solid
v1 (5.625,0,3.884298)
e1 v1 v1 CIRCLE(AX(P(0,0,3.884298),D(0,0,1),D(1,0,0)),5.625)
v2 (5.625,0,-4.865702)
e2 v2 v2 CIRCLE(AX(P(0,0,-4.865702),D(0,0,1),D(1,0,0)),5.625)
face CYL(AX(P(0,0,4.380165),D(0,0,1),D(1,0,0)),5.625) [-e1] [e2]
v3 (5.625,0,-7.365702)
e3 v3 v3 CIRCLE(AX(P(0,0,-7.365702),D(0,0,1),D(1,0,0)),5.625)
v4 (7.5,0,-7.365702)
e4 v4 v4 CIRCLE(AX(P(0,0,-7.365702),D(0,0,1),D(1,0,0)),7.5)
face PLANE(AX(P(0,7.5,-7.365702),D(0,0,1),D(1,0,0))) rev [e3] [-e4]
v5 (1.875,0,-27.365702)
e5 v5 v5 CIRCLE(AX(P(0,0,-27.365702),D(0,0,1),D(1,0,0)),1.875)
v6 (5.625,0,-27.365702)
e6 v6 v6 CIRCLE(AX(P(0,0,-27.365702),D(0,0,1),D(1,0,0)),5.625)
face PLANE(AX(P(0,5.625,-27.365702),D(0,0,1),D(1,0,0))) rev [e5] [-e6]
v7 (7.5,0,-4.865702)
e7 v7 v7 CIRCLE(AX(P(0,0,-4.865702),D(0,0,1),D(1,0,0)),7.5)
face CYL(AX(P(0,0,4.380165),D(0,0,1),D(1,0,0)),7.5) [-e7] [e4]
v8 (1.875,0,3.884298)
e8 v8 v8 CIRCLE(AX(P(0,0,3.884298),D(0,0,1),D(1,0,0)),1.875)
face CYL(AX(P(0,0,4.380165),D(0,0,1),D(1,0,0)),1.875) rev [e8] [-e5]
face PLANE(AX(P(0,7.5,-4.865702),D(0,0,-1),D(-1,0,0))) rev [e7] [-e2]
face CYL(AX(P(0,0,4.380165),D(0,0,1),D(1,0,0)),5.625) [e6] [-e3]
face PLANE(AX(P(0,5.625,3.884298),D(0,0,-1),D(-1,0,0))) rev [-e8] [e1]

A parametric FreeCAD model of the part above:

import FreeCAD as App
import Part
import Sketcher
Q = App.Units.Quantity

doc = App.newDocument("Part")
body = doc.addObject("PartDesign::Body", "Body")

# Sketch on YZ plane
sketch1 = body.newObject("Sketcher::SketchObject", "Sketch")
sketch1.AttachmentSupport = (doc.getObject("YZ_Plane"), [""])
sketch1.MapMode = "FlatFace"
sketch1.addGeometry([
    Part.LineSegment(App.Vector(5.6, -27.4, 0), App.Vector(5.6, -7.4, 0)),  # 0
    Part.LineSegment(App.Vector(5.6, -7.4, 0), App.Vector(7.5, -7.4, 0)),  # 1
    Part.LineSegment(App.Vector(7.5, -7.4, 0), App.Vector(7.5, -4.9, 0)),  # 2
    Part.LineSegment(App.Vector(7.5, -4.9, 0), App.Vector(5.6, -4.9, 0)),  # 3
    Part.LineSegment(App.Vector(5.6, -4.9, 0), App.Vector(5.6, 3.9, 0)),  # 4
    Part.LineSegment(App.Vector(5.6, 3.9, 0), App.Vector(1.9, 3.9, 0)),  # 5
    Part.LineSegment(App.Vector(1.9, 3.9, 0), App.Vector(1.9, -27.4, 0)),  # 6
    Part.LineSegment(App.Vector(1.9, -27.4, 0), App.Vector(5.6, -27.4, 0)),  # 7
], False)
sketch1.addConstraint([
    Sketcher.Constraint("Coincident", 0, 2, 1, 1),
    Sketcher.Constraint("Coincident", 1, 2, 2, 1),
    Sketcher.Constraint("Coincident", 2, 2, 3, 1),
    Sketcher.Constraint("Coincident", 3, 2, 4, 1),
    Sketcher.Constraint("Coincident", 4, 2, 5, 1),
    Sketcher.Constraint("Coincident", 5, 2, 6, 1),
    Sketcher.Constraint("Coincident", 6, 2, 7, 1),
    Sketcher.Constraint("Coincident", 7, 2, 0, 1),
    Sketcher.Constraint("Vertical", 0),
    Sketcher.Constraint("Horizontal", 1),
    Sketcher.Constraint("Vertical", 2),
    Sketcher.Constraint("Horizontal", 3),
    Sketcher.Constraint("Vertical", 4),
    Sketcher.Constraint("Horizontal", 5),
    Sketcher.Constraint("Vertical", 6),
    Sketcher.Constraint("Horizontal", 7),
    Sketcher.Constraint("Vertical", 0, 2, 3, 2),
    Sketcher.Constraint("DistanceY", 0, 1, 0, 2, Q("20 mm")),
    Sketcher.Constraint("DistanceY", 2, 1, 2, 2, Q("2.5 mm")),
    Sketcher.Constraint("DistanceX", 5, 2, 5, 1, Q("3.75 mm")),
    Sketcher.Constraint("DistanceY", 4, 1, 4, 2, Q("8.75 mm")),
    Sketcher.Constraint("DistanceX", -1, 1, 1, 2, Q("7.5 mm")),
    Sketcher.Constraint("DistanceX", 1, 1, 1, 2, Q("1.875 mm")),
    Sketcher.Constraint("DistanceY", 0, 2, -1, 1, Q("7.365702 mm")),
])
revolution = body.newObject("PartDesign::Revolution", "Revolution")
revolution.Profile = sketch1
revolution.ReferenceAxis = (sketch1, ["V_Axis"])
revolution.Angle = 360

doc.recompute()
